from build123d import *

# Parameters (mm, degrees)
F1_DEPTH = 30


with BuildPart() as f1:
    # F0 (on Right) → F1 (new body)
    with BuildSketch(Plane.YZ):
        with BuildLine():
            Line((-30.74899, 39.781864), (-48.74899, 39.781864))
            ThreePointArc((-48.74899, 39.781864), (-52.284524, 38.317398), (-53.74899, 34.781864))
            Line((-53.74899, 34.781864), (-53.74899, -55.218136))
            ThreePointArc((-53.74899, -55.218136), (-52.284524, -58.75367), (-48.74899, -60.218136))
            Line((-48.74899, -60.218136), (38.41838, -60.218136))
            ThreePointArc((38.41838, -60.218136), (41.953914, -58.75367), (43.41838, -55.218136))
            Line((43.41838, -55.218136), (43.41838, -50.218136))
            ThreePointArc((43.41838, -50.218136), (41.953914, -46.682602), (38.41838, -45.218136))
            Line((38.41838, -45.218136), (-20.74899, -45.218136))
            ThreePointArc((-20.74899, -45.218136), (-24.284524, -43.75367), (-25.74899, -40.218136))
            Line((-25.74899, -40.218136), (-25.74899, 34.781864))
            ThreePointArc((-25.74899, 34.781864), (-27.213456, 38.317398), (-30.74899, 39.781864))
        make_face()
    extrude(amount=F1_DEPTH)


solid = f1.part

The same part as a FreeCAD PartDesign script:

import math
import FreeCAD as App
import Part
import Sketcher
Q = App.Units.Quantity

doc = App.newDocument("Part")
params = doc.addObject("Spreadsheet::Sheet", "Params")
for row, (alias, value) in enumerate([
    ("sketch1_radius", "5 mm"),
    ("sketch1_width", "18 mm"),
    ("sketch1_height", "90 mm"),
    ("sketch1_height2", "5 mm"),
    ("pad1_length", "30 mm"),
], start=1):
    params.set(f"A{row}", alias)
    params.set(f"B{row}", "=" + value)
    params.setAlias(f"B{row}", alias)

body = doc.addObject("PartDesign::Body", "Body")

# Sketch on YZ plane
sketch1 = body.newObject("Sketcher::SketchObject", "Sketch")
sketch1.AttachmentSupport = (doc.getObject("YZ_Plane"), [""])
sketch1.MapMode = "FlatFace"
sketch1.addGeometry(Part.LineSegment(App.Vector(-30.74899, 39.781864, 0), App.Vector(-48.74899, 39.781864, 0)), False)
sketch1.addGeometry(Part.ArcOfCircle(Part.Circle(App.Vector(-48.74899, 34.781864, 0), App.Vector(0, 0, 1), 5), math.radians(89.999996), math.radians(180.000004)), False)
sketch1.addGeometry(Part.LineSegment(App.Vector(-53.74899, 34.781864, 0), App.Vector(-53.74899, -55.218136, 0)), False)
sketch1.addGeometry(Part.ArcOfCircle(Part.Circle(App.Vector(-48.74899, -55.218136, 0), App.Vector(0, 0, 1), 5), math.radians(179.999996), math.radians(270.000004)), False)
sketch1.addGeometry(Part.LineSegment(App.Vector(-48.74899, -60.218136, 0), App.Vector(38.41838, -60.218136, 0)), False)
sketch1.addGeometry(Part.ArcOfCircle(Part.Circle(App.Vector(38.41838, -55.218136, 0), App.Vector(0, 0, 1), 5), math.radians(-90.000004), math.radians(0.000004)), False)
sketch1.addGeometry(Part.LineSegment(App.Vector(43.41838, -55.218136, 0), App.Vector(43.41838, -50.218136, 0)), False)
sketch1.addGeometry(Part.ArcOfCircle(Part.Circle(App.Vector(38.41838, -50.218136, 0), App.Vector(0, 0, 1), 5), math.radians(-0.000004), math.radians(90.000004)), False)
sketch1.addGeometry(Part.LineSegment(App.Vector(38.41838, -45.218136, 0), App.Vector(-20.74899, -45.218136, 0)), False)
sketch1.addGeometry(Part.ArcOfCircle(Part.Circle(App.Vector(-20.74899, -40.218136, 0), App.Vector(0, 0, 1), 5), math.radians(179.999996), math.radians(270.000004)), False)
sketch1.addGeometry(Part.LineSegment(App.Vector(-25.74899, -40.218136, 0), App.Vector(-25.74899, 34.781864, 0)), False)
sketch1.addGeometry(Part.ArcOfCircle(Part.Circle(App.Vector(-30.74899, 34.781864, 0), App.Vector(0, 0, 1), 5), math.radians(-0.000004), math.radians(90.000004)), False)
sketch1.addConstraint(Sketcher.Constraint("Tangent", 0, 2, 1, 1))
sketch1.addConstraint(Sketcher.Constraint("Tangent", 1, 2, 2, 1))
sketch1.addConstraint(Sketcher.Constraint("Tangent", 2, 2, 3, 1))
sketch1.addConstraint(Sketcher.Constraint("Tangent", 3, 2, 4, 1))
sketch1.addConstraint(Sketcher.Constraint("Tangent", 4, 2, 5, 1))
sketch1.addConstraint(Sketcher.Constraint("Tangent", 5, 2, 6, 1))
sketch1.addConstraint(Sketcher.Constraint("Tangent", 6, 2, 7, 1))
sketch1.addConstraint(Sketcher.Constraint("Tangent", 7, 2, 8, 1))
sketch1.addConstraint(Sketcher.Constraint("Tangent", 8, 2, 9, 2))
sketch1.addConstraint(Sketcher.Constraint("Tangent", 9, 1, 10, 1))
sketch1.addConstraint(Sketcher.Constraint("Tangent", 10, 2, 11, 1))
sketch1.addConstraint(Sketcher.Constraint("Tangent", 11, 2, 0, 1))
sketch1.addConstraint(Sketcher.Constraint("Horizontal", 0))
sketch1.addConstraint(Sketcher.Constraint("Vertical", 2))
sketch1.addConstraint(Sketcher.Constraint("Horizontal", 4))
sketch1.addConstraint(Sketcher.Constraint("Vertical", 6))
sketch1.addConstraint(Sketcher.Constraint("Horizontal", 8))
sketch1.addConstraint(Sketcher.Constraint("Vertical", 10))
sketch1.addConstraint(Sketcher.Constraint("Equal", 1, 3))
sketch1.addConstraint(Sketcher.Constraint("Equal", 3, 5))
sketch1.addConstraint(Sketcher.Constraint("Equal", 5, 7))
sketch1.addConstraint(Sketcher.Constraint("Equal", 7, 9))
sketch1.addConstraint(Sketcher.Constraint("Equal", 9, 11))
sketch1.addConstraint(Sketcher.Constraint("Radius", 1, Q("5 mm")))
sketch1.addConstraint(Sketcher.Constraint("DistanceX", 0, 2, 0, 1, Q("18 mm")))
sketch1.addConstraint(Sketcher.Constraint("DistanceY", 2, 2, 2, 1, Q("90 mm")))
sketch1.addConstraint(Sketcher.Constraint("DistanceY", 6, 1, 6, 2, Q("5 mm")))
sketch1.addConstraint(Sketcher.Constraint("DistanceX", 4, 1, 4, 2, Q("87.16737 mm")))
sketch1.addConstraint(Sketcher.Constraint("DistanceX", 1, 3, -1, 1, Q("48.74899 mm")))
sketch1.addConstraint(Sketcher.Constraint("DistanceY", -1, 1, 1, 3, Q("34.781864 mm")))
sketch1.setExpression("Constraints[23]", "Params.sketch1_radius")
sketch1.setExpression("Constraints[24]", "Params.sketch1_width")
sketch1.setExpression("Constraints[25]", "Params.sketch1_height")
sketch1.setExpression("Constraints[26]", "Params.sketch1_height2")
pad1 = body.newObject("PartDesign::Pad", "Pad")
pad1.Profile = sketch1
pad1.setExpression("Length", "Params.pad1_length")

doc.recompute()
